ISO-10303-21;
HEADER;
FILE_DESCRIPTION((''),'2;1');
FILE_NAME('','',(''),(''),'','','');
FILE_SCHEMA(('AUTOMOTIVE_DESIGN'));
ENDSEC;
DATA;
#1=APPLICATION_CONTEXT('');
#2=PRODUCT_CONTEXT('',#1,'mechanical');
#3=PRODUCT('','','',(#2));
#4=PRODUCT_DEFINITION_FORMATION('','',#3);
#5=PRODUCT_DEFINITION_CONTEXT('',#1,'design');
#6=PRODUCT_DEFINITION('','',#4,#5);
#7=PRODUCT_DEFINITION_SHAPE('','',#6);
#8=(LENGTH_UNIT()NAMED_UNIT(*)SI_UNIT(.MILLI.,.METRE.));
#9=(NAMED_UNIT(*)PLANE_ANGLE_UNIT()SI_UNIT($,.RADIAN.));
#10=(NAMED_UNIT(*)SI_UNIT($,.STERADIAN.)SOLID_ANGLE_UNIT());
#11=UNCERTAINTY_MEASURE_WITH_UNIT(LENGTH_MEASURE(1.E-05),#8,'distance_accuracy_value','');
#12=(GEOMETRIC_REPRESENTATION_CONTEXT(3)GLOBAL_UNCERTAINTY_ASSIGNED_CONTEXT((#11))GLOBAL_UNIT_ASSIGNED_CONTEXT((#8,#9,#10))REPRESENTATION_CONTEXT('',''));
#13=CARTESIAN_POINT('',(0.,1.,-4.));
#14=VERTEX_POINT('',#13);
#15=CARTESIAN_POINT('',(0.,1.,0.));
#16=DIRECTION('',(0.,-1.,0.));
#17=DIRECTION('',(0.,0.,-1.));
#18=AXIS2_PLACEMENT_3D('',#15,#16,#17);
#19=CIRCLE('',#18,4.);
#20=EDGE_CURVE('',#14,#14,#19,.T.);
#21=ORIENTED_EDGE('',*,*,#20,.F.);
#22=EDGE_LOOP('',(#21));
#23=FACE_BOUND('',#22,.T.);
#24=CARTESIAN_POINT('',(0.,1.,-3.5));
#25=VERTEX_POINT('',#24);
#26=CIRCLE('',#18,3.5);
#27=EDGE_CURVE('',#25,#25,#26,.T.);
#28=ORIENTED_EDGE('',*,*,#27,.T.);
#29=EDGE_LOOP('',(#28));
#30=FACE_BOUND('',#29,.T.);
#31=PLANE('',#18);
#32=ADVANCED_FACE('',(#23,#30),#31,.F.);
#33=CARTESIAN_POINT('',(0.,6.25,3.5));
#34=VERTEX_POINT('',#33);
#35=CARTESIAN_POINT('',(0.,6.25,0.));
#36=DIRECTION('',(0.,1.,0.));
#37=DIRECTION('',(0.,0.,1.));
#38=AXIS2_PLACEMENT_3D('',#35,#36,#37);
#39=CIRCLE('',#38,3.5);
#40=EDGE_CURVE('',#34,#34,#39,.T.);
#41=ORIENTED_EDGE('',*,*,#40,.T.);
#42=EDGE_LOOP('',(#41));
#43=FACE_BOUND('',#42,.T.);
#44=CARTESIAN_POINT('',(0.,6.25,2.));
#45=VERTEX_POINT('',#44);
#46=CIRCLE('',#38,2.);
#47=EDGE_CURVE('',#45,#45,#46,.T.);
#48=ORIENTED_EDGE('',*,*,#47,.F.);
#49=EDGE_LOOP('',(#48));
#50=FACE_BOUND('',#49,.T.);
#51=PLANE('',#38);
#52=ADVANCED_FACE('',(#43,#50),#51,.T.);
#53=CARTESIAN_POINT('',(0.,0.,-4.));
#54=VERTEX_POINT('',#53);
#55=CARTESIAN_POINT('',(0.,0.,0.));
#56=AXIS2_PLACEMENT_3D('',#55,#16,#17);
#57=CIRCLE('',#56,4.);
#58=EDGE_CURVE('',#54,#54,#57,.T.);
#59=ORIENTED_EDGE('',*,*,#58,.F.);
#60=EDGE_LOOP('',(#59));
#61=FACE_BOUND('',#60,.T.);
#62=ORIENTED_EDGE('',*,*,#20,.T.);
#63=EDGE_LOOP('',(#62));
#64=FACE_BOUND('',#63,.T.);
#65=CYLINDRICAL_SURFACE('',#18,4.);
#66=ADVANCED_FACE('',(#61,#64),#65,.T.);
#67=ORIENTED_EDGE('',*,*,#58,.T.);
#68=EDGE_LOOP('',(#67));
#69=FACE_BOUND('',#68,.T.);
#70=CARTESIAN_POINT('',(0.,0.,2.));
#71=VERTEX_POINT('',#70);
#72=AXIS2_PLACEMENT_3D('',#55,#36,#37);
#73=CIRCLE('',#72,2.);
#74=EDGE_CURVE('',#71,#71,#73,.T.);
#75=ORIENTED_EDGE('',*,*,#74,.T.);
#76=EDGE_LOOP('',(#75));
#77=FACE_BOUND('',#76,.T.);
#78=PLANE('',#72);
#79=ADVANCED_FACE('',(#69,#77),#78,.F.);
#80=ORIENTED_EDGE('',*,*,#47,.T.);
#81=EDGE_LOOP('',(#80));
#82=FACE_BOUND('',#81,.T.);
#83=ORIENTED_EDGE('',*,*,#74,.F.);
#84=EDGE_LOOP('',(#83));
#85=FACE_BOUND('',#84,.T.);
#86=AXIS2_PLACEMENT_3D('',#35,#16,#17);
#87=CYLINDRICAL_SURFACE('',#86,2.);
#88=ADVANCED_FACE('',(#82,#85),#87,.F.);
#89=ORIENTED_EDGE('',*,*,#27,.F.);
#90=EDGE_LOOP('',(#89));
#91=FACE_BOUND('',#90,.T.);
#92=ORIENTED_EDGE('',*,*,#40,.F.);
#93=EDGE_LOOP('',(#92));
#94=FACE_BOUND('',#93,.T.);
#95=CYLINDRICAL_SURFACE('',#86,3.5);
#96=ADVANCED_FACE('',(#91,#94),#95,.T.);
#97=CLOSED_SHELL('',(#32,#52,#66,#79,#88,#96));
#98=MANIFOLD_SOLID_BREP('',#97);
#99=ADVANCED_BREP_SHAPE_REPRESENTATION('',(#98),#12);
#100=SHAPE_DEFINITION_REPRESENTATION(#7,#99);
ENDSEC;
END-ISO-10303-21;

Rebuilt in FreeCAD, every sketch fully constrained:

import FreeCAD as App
import Part
import Sketcher

V = App.Vector
Q = App.Units.Quantity

doc = App.newDocument("Part")
body = doc.addObject("PartDesign::Body", "Body")

# Sketch on XZ plane
sketch1 = body.newObject("Sketcher::SketchObject", "Sketch")
sketch1.AttachmentSupport = (doc.getObject("XZ_Plane"), [""])
sketch1.MapMode = "FlatFace"
sketch1.addGeometry([
    Part.Circle(V(0, 0, 0), V(0, 0, 1), 3.5),
    Part.Circle(V(0, 0, 0), V(0, 0, 1), 2),
], False)
sketch1.addConstraint([
    Sketcher.Constraint("Coincident", 0, 3, -1, 1),
    Sketcher.Constraint("Coincident", 1, 3, -1, 1),
    Sketcher.Constraint("Diameter", 0, Q("7 mm")),
    Sketcher.Constraint("Diameter", 1, Q("4 mm")),
])
pad1 = body.newObject("PartDesign::Pad", "Pad")
pad1.Profile = sketch1
pad1.Length = 6.25
pad1.Reversed = True

# Sketch on XZ plane
sketch2 = body.newObject("Sketcher::SketchObject", "Sketch001")
sketch2.AttachmentSupport = (doc.getObject("XZ_Plane"), [""])
sketch2.MapMode = "FlatFace"
sketch2.addGeometry([
    Part.Circle(V(0, 0, 0), V(0, 0, 1), 4),
    Part.Circle(V(0, 0, 0), V(0, 0, 1), 2),
], False)
sketch2.addConstraint([
    Sketcher.Constraint("Coincident", 0, 3, -1, 1),
    Sketcher.Constraint("Coincident", 1, 3, -1, 1),
    Sketcher.Constraint("Diameter", 0, Q("8 mm")),
    Sketcher.Constraint("Diameter", 1, Q("4 mm")),
])
pad2 = body.newObject("PartDesign::Pad", "Pad001")
pad2.Profile = sketch2
pad2.Length = 1
pad2.Reversed = True

doc.recompute()
